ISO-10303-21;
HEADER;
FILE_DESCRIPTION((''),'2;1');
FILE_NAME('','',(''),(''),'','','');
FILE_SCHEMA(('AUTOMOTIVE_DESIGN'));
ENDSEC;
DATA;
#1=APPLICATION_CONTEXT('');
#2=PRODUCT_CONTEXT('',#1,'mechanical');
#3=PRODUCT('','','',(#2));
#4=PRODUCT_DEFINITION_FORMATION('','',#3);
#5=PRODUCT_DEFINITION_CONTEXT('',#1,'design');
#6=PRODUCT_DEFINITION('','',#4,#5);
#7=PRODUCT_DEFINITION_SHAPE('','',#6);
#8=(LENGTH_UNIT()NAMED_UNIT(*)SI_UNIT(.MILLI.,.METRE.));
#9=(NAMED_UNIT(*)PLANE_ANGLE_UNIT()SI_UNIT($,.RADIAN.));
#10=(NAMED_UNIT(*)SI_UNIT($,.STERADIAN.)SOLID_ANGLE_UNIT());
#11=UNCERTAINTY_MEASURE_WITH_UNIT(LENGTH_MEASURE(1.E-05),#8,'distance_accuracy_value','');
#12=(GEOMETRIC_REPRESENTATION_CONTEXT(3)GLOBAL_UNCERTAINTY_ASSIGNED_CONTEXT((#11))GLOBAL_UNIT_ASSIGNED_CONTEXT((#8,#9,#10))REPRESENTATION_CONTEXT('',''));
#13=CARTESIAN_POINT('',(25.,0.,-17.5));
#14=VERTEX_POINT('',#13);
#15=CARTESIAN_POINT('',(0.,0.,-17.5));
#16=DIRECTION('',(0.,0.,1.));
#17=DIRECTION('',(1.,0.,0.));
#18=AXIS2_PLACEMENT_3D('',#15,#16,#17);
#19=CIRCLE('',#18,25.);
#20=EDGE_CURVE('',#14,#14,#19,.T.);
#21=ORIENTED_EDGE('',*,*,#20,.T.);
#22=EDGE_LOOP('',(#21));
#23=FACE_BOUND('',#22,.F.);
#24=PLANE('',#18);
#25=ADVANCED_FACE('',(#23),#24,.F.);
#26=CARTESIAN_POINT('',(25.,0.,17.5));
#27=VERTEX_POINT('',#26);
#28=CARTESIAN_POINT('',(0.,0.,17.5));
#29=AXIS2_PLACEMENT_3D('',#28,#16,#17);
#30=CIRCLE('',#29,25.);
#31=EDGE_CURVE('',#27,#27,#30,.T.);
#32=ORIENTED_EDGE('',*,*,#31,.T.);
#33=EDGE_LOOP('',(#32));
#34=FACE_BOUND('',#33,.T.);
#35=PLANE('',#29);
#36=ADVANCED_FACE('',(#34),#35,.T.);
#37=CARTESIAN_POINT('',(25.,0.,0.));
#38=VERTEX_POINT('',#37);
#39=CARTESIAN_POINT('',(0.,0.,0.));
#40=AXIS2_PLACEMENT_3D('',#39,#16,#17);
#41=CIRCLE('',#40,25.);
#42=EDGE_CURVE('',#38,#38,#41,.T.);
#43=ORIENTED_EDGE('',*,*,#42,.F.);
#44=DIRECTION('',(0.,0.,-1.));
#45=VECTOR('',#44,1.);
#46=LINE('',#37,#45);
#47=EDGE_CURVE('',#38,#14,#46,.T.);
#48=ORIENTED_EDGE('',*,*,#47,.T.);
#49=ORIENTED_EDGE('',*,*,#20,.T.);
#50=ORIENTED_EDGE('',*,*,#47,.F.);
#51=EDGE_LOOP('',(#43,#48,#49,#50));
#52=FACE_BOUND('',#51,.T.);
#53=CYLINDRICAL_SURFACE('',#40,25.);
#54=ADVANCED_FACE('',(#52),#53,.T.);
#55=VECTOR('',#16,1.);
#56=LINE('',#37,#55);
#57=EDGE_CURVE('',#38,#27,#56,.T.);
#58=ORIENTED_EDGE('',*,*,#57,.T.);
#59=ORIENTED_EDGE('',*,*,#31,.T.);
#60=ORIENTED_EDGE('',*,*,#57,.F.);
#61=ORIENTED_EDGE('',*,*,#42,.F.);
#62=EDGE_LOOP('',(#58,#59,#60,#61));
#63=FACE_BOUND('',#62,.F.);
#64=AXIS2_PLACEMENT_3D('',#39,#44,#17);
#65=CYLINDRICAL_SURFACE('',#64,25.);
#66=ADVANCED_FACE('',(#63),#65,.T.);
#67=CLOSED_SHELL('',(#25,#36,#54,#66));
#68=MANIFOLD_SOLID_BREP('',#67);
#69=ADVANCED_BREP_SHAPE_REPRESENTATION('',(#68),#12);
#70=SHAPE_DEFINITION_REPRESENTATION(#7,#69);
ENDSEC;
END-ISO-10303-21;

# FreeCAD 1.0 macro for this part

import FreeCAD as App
import Part
import Sketcher
from FreeCAD import Vector

doc = App.newDocument("Part")
params = doc.addObject("Spreadsheet::Sheet", "Params")
for row, (alias, value) in enumerate([
    ("sketch1_diameter", "50 mm"),
    ("pad1_length", "35 mm"),
], start=1):
    params.set(f"A{row}", alias)
    params.set(f"B{row}", "=" + value)
    params.setAlias(f"B{row}", alias)

body = doc.addObject("PartDesign::Body", "Body")

sketch1 = body.newObject("Sketcher::SketchObject", "Sketch")
sketch1.AttachmentSupport = (doc.getObject("XY_Plane"), [""])
sketch1.MapMode = "FlatFace"
sketch1.addGeometry(Part.Circle(Vector(0, 0, 0), Vector(0, 0, 1), 25), False)
sketch1.addConstraint([
    Sketcher.Constraint("Coincident", 0, 3, -1, 1),
    Sketcher.Constraint("Diameter", 0, 50.0),
])
sketch1.setExpression("Constraints[1]", "Params.sketch1_diameter")
pad1 = body.newObject("PartDesign::Pad", "Pad")
pad1.Profile = sketch1
pad1.setExpression("Length", "Params.pad1_length")
pad1.Midplane = True

doc.recompute()
